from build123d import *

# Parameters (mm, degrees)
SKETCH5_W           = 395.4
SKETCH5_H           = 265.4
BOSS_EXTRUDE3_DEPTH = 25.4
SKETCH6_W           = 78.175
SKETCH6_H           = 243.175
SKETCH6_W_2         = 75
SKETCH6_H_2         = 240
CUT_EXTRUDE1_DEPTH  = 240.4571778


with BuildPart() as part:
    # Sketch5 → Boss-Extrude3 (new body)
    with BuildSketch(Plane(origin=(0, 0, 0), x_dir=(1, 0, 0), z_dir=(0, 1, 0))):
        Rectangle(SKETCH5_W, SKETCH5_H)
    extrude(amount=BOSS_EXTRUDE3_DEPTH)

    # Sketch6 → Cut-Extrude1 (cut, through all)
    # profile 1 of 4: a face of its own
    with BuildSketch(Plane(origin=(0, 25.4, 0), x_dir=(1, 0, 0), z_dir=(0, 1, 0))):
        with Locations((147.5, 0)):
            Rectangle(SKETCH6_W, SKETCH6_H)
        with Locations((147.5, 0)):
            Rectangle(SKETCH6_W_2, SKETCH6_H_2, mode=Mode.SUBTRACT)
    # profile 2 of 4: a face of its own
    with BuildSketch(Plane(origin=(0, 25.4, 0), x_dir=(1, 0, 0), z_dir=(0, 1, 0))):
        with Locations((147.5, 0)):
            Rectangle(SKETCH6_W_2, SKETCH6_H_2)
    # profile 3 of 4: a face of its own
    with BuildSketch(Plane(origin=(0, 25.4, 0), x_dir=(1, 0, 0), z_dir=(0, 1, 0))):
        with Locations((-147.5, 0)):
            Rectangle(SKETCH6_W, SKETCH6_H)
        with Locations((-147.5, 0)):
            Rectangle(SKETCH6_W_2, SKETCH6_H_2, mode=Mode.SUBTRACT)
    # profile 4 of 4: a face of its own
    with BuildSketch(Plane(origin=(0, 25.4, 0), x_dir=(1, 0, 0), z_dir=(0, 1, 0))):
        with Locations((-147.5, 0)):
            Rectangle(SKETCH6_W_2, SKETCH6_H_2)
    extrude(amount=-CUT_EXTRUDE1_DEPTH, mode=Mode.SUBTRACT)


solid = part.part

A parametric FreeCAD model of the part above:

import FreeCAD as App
import Part
import Sketcher

doc = App.newDocument("Part")
params = doc.addObject("Spreadsheet::Sheet", "Params")
for row, (alias, value) in enumerate([
    ("sketch1_width", "395.4 mm"),
    ("sketch1_height", "265.4 mm"),
    ("pad1_length", "25.4 mm"),
    ("pocket1_length", "240.457178 mm"),
], start=1):
    params.set(f"A{row}", alias)
    params.set(f"B{row}", "=" + value)
    params.setAlias(f"B{row}", alias)

body = doc.addObject("PartDesign::Body", "Body")

# Sketch on XZ plane
sketch1 = doc.addObject("Sketcher::SketchObject", "Sketch")
body.addObject(sketch1)
sketch1.AttachmentSupport = (doc.XZ_Plane, [""])
sketch1.MapMode = "FlatFace"
sketch1.addGeometry([
    Part.LineSegment(App.Vector(-198, -133, 0), App.Vector(-198, 133, 0)),
    Part.LineSegment(App.Vector(-198, 133, 0), App.Vector(198, 133, 0)),
    Part.LineSegment(App.Vector(198, 133, 0), App.Vector(198, -133, 0)),
    Part.LineSegment(App.Vector(198, -133, 0), App.Vector(-198, -133, 0)),
], False)
sketch1.addConstraint([
    Sketcher.Constraint("Coincident", 0, 2, 1, 1),
    Sketcher.Constraint("Coincident", 1, 2, 2, 1),
    Sketcher.Constraint("Coincident", 2, 2, 3, 1),
    Sketcher.Constraint("Coincident", 3, 2, 0, 1),
    Sketcher.Constraint("Vertical", 0),
    Sketcher.Constraint("Horizontal", 1),
    Sketcher.Constraint("Vertical", 2),
    Sketcher.Constraint("Horizontal", 3),
    Sketcher.Constraint("Symmetric", 0, 2, 2, 2, -1, 1),
    Sketcher.Constraint("DistanceX", 1, 1, 1, 2, 395.4),
    Sketcher.Constraint("DistanceY", 0, 1, 0, 2, 265.4),
])
sketch1.setExpression("Constraints[9]", "Params.sketch1_width")
sketch1.setExpression("Constraints[10]", "Params.sketch1_height")
pad1 = doc.addObject("PartDesign::Pad", "Pad")
body.addObject(pad1)
pad1.Profile = sketch1
pad1.setExpression("Length", "Params.pad1_length")
pad1.Reversed = True

# Sketch on XZ plane
sketch2 = doc.addObject("Sketcher::SketchObject", "Sketch001")
body.addObject(sketch2)
sketch2.AttachmentSupport = (doc.XZ_Plane, [""])
sketch2.MapMode = "FlatFace"
sketch2.AttachmentOffset = App.Placement(App.Vector(0, 0, -25.4), App.Rotation())
sketch2.addGeometry([
    Part.LineSegment(App.Vector(108, -122, 0), App.Vector(108, 122, 0)),  # 0
    Part.LineSegment(App.Vector(108, 122, 0), App.Vector(187, 122, 0)),  # 1
    Part.LineSegment(App.Vector(187, 122, 0), App.Vector(187, -122, 0)),  # 2
    Part.LineSegment(App.Vector(187, -122, 0), App.Vector(108, -122, 0)),  # 3
    Part.LineSegment(App.Vector(-187, -122, 0), App.Vector(-187, 122, 0)),  # 4
    Part.LineSegment(App.Vector(-187, 122, 0), App.Vector(-108, 122, 0)),  # 5
    Part.LineSegment(App.Vector(-108, 122, 0), App.Vector(-108, -122, 0)),  # 6
    Part.LineSegment(App.Vector(-108, -122, 0), App.Vector(-187, -122, 0)),  # 7
], False)
sketch2.addConstraint([
    Sketcher.Constraint("Coincident", 0, 2, 1, 1),
    Sketcher.Constraint("Coincident", 1, 2, 2, 1),
    Sketcher.Constraint("Coincident", 2, 2, 3, 1),
    Sketcher.Constraint("Coincident", 3, 2, 0, 1),
    Sketcher.Constraint("Coincident", 4, 2, 5, 1),
    Sketcher.Constraint("Coincident", 5, 2, 6, 1),
    Sketcher.Constraint("Coincident", 6, 2, 7, 1),
    Sketcher.Constraint("Coincident", 7, 2, 4, 1),
    Sketcher.Constraint("Vertical", 0),
    Sketcher.Constraint("Horizontal", 1),
    Sketcher.Constraint("Vertical", 2),
    Sketcher.Constraint("Horizontal", 3),
    Sketcher.Constraint("Vertical", 4),
    Sketcher.Constraint("Horizontal", 5),
    Sketcher.Constraint("Vertical", 6),
    Sketcher.Constraint("Horizontal", 7),
    Sketcher.Constraint("Symmetric", 2, 2, 4, 2, -1, 1),
    Sketcher.Constraint("Symmetric", 0, 2, 6, 2, -1, 1),
    Sketcher.Constraint("Horizontal", 1, 2, 4, 2),
    Sketcher.Constraint("DistanceX", 4, 2, 0, 2, 295.0),
    Sketcher.Constraint("DistanceX", 1, 1, 1, 2, 78.175),
    Sketcher.Constraint("DistanceY", 0, 1, 0, 2, 243.175),
])
pocket1 = doc.addObject("PartDesign::Pocket", "Pocket")
body.addObject(pocket1)
pocket1.Profile = sketch2
pocket1.setExpression("Length", "Params.pocket1_length")
pocket1.Reversed = True

doc.recompute()
